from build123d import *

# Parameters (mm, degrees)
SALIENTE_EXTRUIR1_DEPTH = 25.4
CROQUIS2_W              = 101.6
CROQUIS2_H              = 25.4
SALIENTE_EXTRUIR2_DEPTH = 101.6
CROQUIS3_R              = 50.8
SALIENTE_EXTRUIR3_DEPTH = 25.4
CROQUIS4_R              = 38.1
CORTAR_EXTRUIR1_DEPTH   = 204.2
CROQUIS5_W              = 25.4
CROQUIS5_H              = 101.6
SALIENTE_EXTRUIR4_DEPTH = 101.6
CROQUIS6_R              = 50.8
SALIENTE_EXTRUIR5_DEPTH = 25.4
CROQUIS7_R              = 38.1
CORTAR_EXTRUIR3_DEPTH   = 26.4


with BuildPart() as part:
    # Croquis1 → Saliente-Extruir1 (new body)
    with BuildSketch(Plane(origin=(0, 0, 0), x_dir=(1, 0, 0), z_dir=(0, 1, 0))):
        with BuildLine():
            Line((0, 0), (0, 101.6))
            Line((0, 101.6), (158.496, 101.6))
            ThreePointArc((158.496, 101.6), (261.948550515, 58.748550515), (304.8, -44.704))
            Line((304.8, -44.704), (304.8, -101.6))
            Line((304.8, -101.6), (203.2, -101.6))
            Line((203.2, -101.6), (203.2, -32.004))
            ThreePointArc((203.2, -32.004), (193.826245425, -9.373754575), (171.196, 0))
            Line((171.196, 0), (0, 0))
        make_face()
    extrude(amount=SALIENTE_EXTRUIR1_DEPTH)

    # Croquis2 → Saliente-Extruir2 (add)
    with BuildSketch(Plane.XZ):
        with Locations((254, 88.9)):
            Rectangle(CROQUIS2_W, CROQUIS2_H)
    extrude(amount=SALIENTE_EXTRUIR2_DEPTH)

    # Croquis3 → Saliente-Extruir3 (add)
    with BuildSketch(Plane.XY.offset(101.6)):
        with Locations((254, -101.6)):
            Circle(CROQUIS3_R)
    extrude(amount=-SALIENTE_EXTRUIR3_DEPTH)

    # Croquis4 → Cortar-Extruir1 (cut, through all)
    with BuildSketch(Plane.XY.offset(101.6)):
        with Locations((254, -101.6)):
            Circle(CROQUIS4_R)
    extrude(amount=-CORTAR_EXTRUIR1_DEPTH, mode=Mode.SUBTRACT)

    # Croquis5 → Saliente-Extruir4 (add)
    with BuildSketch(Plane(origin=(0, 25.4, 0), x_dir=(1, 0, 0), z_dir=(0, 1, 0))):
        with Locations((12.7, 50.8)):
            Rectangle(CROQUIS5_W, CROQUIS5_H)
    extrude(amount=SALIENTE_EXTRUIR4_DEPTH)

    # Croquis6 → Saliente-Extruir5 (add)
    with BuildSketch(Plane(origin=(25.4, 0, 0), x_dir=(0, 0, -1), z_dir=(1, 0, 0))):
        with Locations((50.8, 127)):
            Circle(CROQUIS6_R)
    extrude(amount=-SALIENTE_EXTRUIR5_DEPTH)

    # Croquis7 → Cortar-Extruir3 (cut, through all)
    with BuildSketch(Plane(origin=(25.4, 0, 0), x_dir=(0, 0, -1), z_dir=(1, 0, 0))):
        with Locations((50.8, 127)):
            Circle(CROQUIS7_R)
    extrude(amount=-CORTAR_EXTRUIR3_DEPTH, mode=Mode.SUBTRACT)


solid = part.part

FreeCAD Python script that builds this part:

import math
import FreeCAD as App
import Part
import Sketcher
from FreeCAD import Vector
Q = App.Units.Quantity


def add_polygon(sketch, points):
    """Adds a closed chain of lines whose ends are joined by coincident constraints."""
    first, n = sketch.GeometryCount, len(points)
    for a, b in zip(points, points[1:] + points[:1]):
        sketch.addGeometry(Part.LineSegment(App.Vector(*a, 0), App.Vector(*b, 0)), False)
    for i in range(n):
        sketch.addConstraint(Sketcher.Constraint("Coincident", first + i, 2, first + (i + 1) % n, 1))

doc = App.newDocument("Part")
body = doc.addObject("PartDesign::Body", "Body")

# Sketch on XZ plane
sketch1 = body.newObject("Sketcher::SketchObject", "Sketch")
sketch1.AttachmentSupport = (doc.getObject("XZ_Plane"), [""])
sketch1.MapMode = "FlatFace"
sketch1.addGeometry([
    Part.LineSegment(Vector(0, -101.6, 0), Vector(0, 0, 0)),  # 0
    Part.LineSegment(Vector(0, 0, 0), Vector(171.196, 0, 0)),  # 1
    Part.ArcOfCircle(Part.Circle(Vector(171.196, 32.004, 0), Vector(0, 0, 1), 32.004), math.radians(-90), math.radians(0)),  # 2
    Part.LineSegment(Vector(203.2, 32.004, 0), Vector(203.2, 101.6, 0)),  # 3
    Part.LineSegment(Vector(203.2, 101.6, 0), Vector(304.8, 101.6, 0)),  # 4
    Part.LineSegment(Vector(304.8, 101.6, 0), Vector(304.8, 44.704, 0)),  # 5
    Part.ArcOfCircle(Part.Circle(Vector(158.496, 44.704, 0), Vector(0, 0, 1), 146.304), math.radians(-90), math.radians(0)),  # 6
    Part.LineSegment(Vector(158.496, -101.6, 0), Vector(0, -101.6, 0)),  # 7
], False)
sketch1.addConstraint([
    Sketcher.Constraint("Coincident", 0, 2, 1, 1),
    Sketcher.Constraint("Tangent", 1, 2, 2, 1),
    Sketcher.Constraint("Tangent", 2, 2, 3, 1),
    Sketcher.Constraint("Coincident", 3, 2, 4, 1),
    Sketcher.Constraint("Coincident", 4, 2, 5, 1),
    Sketcher.Constraint("Tangent", 5, 2, 6, 2),
    Sketcher.Constraint("Tangent", 6, 1, 7, 1),
    Sketcher.Constraint("Coincident", 7, 2, 0, 1),
    Sketcher.Constraint("Vertical", 0),
    Sketcher.Constraint("Horizontal", 1),
    Sketcher.Constraint("Vertical", 3),
    Sketcher.Constraint("Horizontal", 4),
    Sketcher.Constraint("Vertical", 5),
    Sketcher.Constraint("Horizontal", 7),
    Sketcher.Constraint("Coincident", 0, 2, -1, 1),
    Sketcher.Constraint("Equal", 4, 0),
    Sketcher.Constraint("DistanceX", 4, 1, 4, 2, Q("4 in")),
    Sketcher.Constraint("Radius", 2, Q("1.26 in")),
    Sketcher.Constraint("Radius", 6, Q("5.76 in")),
    Sketcher.Constraint("DistanceX", -1, 1, 2, 2, Q("8 in")),
    Sketcher.Constraint("DistanceY", -1, 1, 3, 2, Q("4 in")),
])
pad1 = body.newObject("PartDesign::Pad", "Pad")
pad1.Profile = sketch1
pad1.Length = Q("1 in")
pad1.Reversed = True

# Sketch on XZ plane
sketch2 = body.newObject("Sketcher::SketchObject", "Sketch001")
sketch2.AttachmentSupport = (doc.getObject("XZ_Plane"), [""])
sketch2.MapMode = "FlatFace"
add_polygon(sketch2, [(203.2, 101.6), (203.2, 76.2), (304.8, 76.2), (304.8, 101.6)])  # lines 0-3
sketch2.addConstraint([
    Sketcher.Constraint("Vertical", 0),
    Sketcher.Constraint("Horizontal", 1),
    Sketcher.Constraint("Vertical", 2),
    Sketcher.Constraint("Horizontal", 3),
    Sketcher.Constraint("DistanceX", 1, 1, 1, 2, Q("4 in")),
    Sketcher.Constraint("DistanceY", 0, 2, 0, 1, Q("1 in")),
    Sketcher.Constraint("DistanceX", -1, 1, 0, 2, Q("8 in")),
    Sketcher.Constraint("DistanceY", -1, 1, 0, 2, Q("3 in")),
])
pad2 = body.newObject("PartDesign::Pad", "Pad001")
pad2.Profile = sketch2
pad2.Length = Q("4 in")

# Sketch on XY plane
sketch3 = body.newObject("Sketcher::SketchObject", "Sketch002")
sketch3.AttachmentSupport = (doc.getObject("XY_Plane"), [""])
sketch3.MapMode = "FlatFace"
sketch3.AttachmentOffset = App.Placement(Vector(0, 0, 4 * 25.4), App.Rotation())
sketch3.addGeometry(Part.Circle(Vector(254, -101.6, 0), Vector(0, 0, 1), 50.8), False)
sketch3.addConstraint([
    Sketcher.Constraint("Diameter", 0, Q("4 in")),
    Sketcher.Constraint("DistanceX", -1, 1, 0, 3, Q("10 in")),
    Sketcher.Constraint("DistanceY", 0, 3, -1, 1, Q("4 in")),
])
pad3 = body.newObject("PartDesign::Pad", "Pad002")
pad3.Profile = sketch3
pad3.Length = Q("1 in")
pad3.Reversed = True

# Sketch on XY plane
sketch4 = body.newObject("Sketcher::SketchObject", "Sketch003")
sketch4.AttachmentSupport = (doc.getObject("XY_Plane"), [""])
sketch4.MapMode = "FlatFace"
sketch4.AttachmentOffset = App.Placement(Vector(0, 0, 4 * 25.4), App.Rotation())
sketch4.addGeometry(Part.Circle(Vector(254, -101.6, 0), Vector(0, 0, 1), 38.1), False)
sketch4.addConstraint([
    Sketcher.Constraint("Diameter", 0, Q("3 in")),
    Sketcher.Constraint("DistanceX", -1, 1, 0, 3, Q("10 in")),
    Sketcher.Constraint("DistanceY", 0, 3, -1, 1, Q("4 in")),
])
pocket1 = body.newObject("PartDesign::Pocket", "Pocket")
pocket1.Profile = sketch4
pocket1.Type = "ThroughAll"

# Sketch on XZ plane
sketch5 = body.newObject("Sketcher::SketchObject", "Sketch004")
sketch5.AttachmentSupport = (doc.getObject("XZ_Plane"), [""])
sketch5.MapMode = "FlatFace"
sketch5.AttachmentOffset = App.Placement(Vector(0, 0, -1 * 25.4), App.Rotation())
add_polygon(sketch5, [(0, -101.6), (0, 0), (25.4, 0), (25.4, -101.6)])  # lines 0-3
sketch5.addConstraint([
    Sketcher.Constraint("Vertical", 0),
    Sketcher.Constraint("Horizontal", 1),
    Sketcher.Constraint("Vertical", 2),
    Sketcher.Constraint("Horizontal", 3),
    Sketcher.Constraint("Coincident", 0, 2, -1, 1),
    Sketcher.Constraint("DistanceX", 1, 1, 1, 2, Q("1 in")),
    Sketcher.Constraint("DistanceY", 0, 1, 0, 2, Q("4 in")),
])
pad4 = body.newObject("PartDesign::Pad", "Pad003")
pad4.Profile = sketch5
pad4.Length = Q("4 in")
pad4.Reversed = True

# Sketch on YZ plane
sketch6 = body.newObject("Sketcher::SketchObject", "Sketch005")
sketch6.AttachmentSupport = (doc.getObject("YZ_Plane"), [""])
sketch6.MapMode = "FlatFace"
sketch6.AttachmentOffset = App.Placement(Vector(0, 0, 1 * 25.4), App.Rotation())
sketch6.addGeometry(Part.Circle(Vector(127, -50.8, 0), Vector(0, 0, 1), 50.8), False)
sketch6.addConstraint([
    Sketcher.Constraint("Diameter", 0, Q("4 in")),
    Sketcher.Constraint("DistanceX", -1, 1, 0, 3, Q("5 in")),
    Sketcher.Constraint("DistanceY", 0, 3, -1, 1, Q("2 in")),
])
pad5 = body.newObject("PartDesign::Pad", "Pad004")
pad5.Profile = sketch6
pad5.Length = Q("1 in")
pad5.Reversed = True

# Sketch on YZ plane
sketch7 = body.newObject("Sketcher::SketchObject", "Sketch006")
sketch7.AttachmentSupport = (doc.getObject("YZ_Plane"), [""])
sketch7.MapMode = "FlatFace"
sketch7.AttachmentOffset = App.Placement(Vector(0, 0, 1 * 25.4), App.Rotation())
sketch7.addGeometry(Part.Circle(Vector(127, -50.8, 0), Vector(0, 0, 1), 38.1), False)
sketch7.addConstraint([
    Sketcher.Constraint("Diameter", 0, Q("3 in")),
    Sketcher.Constraint("DistanceX", -1, 1, 0, 3, Q("5 in")),
    Sketcher.Constraint("DistanceY", 0, 3, -1, 1, Q("2 in")),
])
pocket2 = body.newObject("PartDesign::Pocket", "Pocket001")
pocket2.Profile = sketch7
pocket2.Type = "ThroughAll"

doc.recompute()
